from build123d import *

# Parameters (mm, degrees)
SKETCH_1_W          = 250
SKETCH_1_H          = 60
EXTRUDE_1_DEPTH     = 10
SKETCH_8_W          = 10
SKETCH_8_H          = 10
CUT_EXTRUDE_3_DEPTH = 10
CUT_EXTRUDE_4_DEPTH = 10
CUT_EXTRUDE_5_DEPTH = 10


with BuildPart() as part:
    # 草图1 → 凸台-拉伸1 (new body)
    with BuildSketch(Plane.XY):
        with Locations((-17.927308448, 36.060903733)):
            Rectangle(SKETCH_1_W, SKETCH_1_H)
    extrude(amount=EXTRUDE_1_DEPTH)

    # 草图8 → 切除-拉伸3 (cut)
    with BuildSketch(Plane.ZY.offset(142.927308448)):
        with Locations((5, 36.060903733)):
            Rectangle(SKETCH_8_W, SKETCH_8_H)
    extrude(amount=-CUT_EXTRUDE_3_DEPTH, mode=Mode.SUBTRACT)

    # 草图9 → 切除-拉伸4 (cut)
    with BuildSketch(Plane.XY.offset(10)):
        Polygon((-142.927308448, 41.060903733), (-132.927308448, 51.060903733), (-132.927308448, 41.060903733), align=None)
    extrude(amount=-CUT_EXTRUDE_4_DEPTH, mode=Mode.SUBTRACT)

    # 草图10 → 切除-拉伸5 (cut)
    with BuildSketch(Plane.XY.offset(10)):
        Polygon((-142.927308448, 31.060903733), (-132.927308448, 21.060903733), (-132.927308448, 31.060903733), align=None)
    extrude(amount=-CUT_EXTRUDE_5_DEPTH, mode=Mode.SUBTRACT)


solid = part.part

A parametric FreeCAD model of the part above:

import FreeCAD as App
import Part
import Sketcher
from FreeCAD import Vector


def add_polygon(sketch, points):
    """Adds a closed chain of lines whose ends are joined by coincident constraints."""
    first, n = sketch.GeometryCount, len(points)
    for a, b in zip(points, points[1:] + points[:1]):
        sketch.addGeometry(Part.LineSegment(App.Vector(*a, 0), App.Vector(*b, 0)), False)
    for i in range(n):
        sketch.addConstraint(Sketcher.Constraint("Coincident", first + i, 2, first + (i + 1) % n, 1))

doc = App.newDocument("Part")
body = doc.addObject("PartDesign::Body", "Body")

# Sketch on XY plane
sketch1 = doc.addObject("Sketcher::SketchObject", "Sketch")
body.addObject(sketch1)
sketch1.AttachmentSupport = (doc.XY_Plane, [""])
sketch1.MapMode = "FlatFace"
add_polygon(sketch1, [(-143, 66), (-143, 6), (107, 6), (107, 66)])  # lines 0-3
sketch1.addConstraint([
    Sketcher.Constraint("Vertical", 0),
    Sketcher.Constraint("Horizontal", 1),
    Sketcher.Constraint("Vertical", 2),
    Sketcher.Constraint("Horizontal", 3),
    Sketcher.Constraint("DistanceX", 1, 1, 1, 2, 250.0),
    Sketcher.Constraint("DistanceY", 0, 2, 0, 1, 60.0),
    Sketcher.Constraint("DistanceX", 0, 2, -1, 1, 142.927308),
    Sketcher.Constraint("DistanceY", -1, 1, 0, 2, 6.060904),
])
pad1 = doc.addObject("PartDesign::Pad", "Pad")
body.addObject(pad1)
pad1.Profile = sketch1
pad1.Length = 10

# Sketch on YZ plane
sketch2 = doc.addObject("Sketcher::SketchObject", "Sketch001")
body.addObject(sketch2)
sketch2.AttachmentSupport = (doc.YZ_Plane, [""])
sketch2.MapMode = "FlatFace"
sketch2.AttachmentOffset = App.Placement(Vector(0, 0, -142.927308), App.Rotation())
add_polygon(sketch2, [(41, 0), (31, 0), (31, 10), (41, 10)])  # lines 0-3
sketch2.addConstraint([
    Sketcher.Constraint("Horizontal", 0),
    Sketcher.Constraint("Vertical", 1),
    Sketcher.Constraint("Horizontal", 2),
    Sketcher.Constraint("Vertical", 3),
    Sketcher.Constraint("PointOnObject", 0, 2, -1),
    Sketcher.Constraint("Equal", 2, 1),
    Sketcher.Constraint("DistanceX", 0, 2, 0, 1, 10.0),
    Sketcher.Constraint("DistanceX", -1, 1, 0, 2, 31.060904),
])
pocket1 = doc.addObject("PartDesign::Pocket", "Pocket")
body.addObject(pocket1)
pocket1.Profile = sketch2
pocket1.Length = 10
pocket1.Reversed = True

# Sketch on XY plane
sketch3 = doc.addObject("Sketcher::SketchObject", "Sketch002")
body.addObject(sketch3)
sketch3.AttachmentSupport = (doc.XY_Plane, [""])
sketch3.MapMode = "FlatFace"
sketch3.AttachmentOffset = App.Placement(Vector(0, 0, 10), App.Rotation())
add_polygon(sketch3, [(-133, 51), (-143, 41), (-133, 41)])  # lines 0-2
sketch3.addConstraint([
    Sketcher.Constraint("Horizontal", 1),
    Sketcher.Constraint("Vertical", 2),
    Sketcher.Constraint("Equal", 1, 2),
    Sketcher.Constraint("DistanceX", 1, 1, 1, 2, 10.0),
    Sketcher.Constraint("DistanceX", 0, 2, -1, 1, 142.927308),
    Sketcher.Constraint("DistanceY", -1, 1, 0, 2, 41.060904),
])
pocket2 = doc.addObject("PartDesign::Pocket", "Pocket001")
body.addObject(pocket2)
pocket2.Profile = sketch3
pocket2.Length = 10

# Sketch on XY plane
sketch4 = doc.addObject("Sketcher::SketchObject", "Sketch003")
body.addObject(sketch4)
sketch4.AttachmentSupport = (doc.XY_Plane, [""])
sketch4.MapMode = "FlatFace"
sketch4.AttachmentOffset = App.Placement(Vector(0, 0, 10), App.Rotation())
add_polygon(sketch4, [(-143, 31), (-133, 21), (-133, 31)])  # lines 0-2
sketch4.addConstraint([
    Sketcher.Constraint("Vertical", 1),
    Sketcher.Constraint("Horizontal", 2),
    Sketcher.Constraint("Equal", 2, 1),
    Sketcher.Constraint("DistanceX", 2, 2, 2, 1, 10.0),
    Sketcher.Constraint("DistanceX", 0, 2, -1, 1, 132.927308),
    Sketcher.Constraint("DistanceY", -1, 1, 0, 2, 21.060904),
])
pocket3 = doc.addObject("PartDesign::Pocket", "Pocket002")
body.addObject(pocket3)
pocket3.Profile = sketch4
pocket3.Length = 10

doc.recompute()
